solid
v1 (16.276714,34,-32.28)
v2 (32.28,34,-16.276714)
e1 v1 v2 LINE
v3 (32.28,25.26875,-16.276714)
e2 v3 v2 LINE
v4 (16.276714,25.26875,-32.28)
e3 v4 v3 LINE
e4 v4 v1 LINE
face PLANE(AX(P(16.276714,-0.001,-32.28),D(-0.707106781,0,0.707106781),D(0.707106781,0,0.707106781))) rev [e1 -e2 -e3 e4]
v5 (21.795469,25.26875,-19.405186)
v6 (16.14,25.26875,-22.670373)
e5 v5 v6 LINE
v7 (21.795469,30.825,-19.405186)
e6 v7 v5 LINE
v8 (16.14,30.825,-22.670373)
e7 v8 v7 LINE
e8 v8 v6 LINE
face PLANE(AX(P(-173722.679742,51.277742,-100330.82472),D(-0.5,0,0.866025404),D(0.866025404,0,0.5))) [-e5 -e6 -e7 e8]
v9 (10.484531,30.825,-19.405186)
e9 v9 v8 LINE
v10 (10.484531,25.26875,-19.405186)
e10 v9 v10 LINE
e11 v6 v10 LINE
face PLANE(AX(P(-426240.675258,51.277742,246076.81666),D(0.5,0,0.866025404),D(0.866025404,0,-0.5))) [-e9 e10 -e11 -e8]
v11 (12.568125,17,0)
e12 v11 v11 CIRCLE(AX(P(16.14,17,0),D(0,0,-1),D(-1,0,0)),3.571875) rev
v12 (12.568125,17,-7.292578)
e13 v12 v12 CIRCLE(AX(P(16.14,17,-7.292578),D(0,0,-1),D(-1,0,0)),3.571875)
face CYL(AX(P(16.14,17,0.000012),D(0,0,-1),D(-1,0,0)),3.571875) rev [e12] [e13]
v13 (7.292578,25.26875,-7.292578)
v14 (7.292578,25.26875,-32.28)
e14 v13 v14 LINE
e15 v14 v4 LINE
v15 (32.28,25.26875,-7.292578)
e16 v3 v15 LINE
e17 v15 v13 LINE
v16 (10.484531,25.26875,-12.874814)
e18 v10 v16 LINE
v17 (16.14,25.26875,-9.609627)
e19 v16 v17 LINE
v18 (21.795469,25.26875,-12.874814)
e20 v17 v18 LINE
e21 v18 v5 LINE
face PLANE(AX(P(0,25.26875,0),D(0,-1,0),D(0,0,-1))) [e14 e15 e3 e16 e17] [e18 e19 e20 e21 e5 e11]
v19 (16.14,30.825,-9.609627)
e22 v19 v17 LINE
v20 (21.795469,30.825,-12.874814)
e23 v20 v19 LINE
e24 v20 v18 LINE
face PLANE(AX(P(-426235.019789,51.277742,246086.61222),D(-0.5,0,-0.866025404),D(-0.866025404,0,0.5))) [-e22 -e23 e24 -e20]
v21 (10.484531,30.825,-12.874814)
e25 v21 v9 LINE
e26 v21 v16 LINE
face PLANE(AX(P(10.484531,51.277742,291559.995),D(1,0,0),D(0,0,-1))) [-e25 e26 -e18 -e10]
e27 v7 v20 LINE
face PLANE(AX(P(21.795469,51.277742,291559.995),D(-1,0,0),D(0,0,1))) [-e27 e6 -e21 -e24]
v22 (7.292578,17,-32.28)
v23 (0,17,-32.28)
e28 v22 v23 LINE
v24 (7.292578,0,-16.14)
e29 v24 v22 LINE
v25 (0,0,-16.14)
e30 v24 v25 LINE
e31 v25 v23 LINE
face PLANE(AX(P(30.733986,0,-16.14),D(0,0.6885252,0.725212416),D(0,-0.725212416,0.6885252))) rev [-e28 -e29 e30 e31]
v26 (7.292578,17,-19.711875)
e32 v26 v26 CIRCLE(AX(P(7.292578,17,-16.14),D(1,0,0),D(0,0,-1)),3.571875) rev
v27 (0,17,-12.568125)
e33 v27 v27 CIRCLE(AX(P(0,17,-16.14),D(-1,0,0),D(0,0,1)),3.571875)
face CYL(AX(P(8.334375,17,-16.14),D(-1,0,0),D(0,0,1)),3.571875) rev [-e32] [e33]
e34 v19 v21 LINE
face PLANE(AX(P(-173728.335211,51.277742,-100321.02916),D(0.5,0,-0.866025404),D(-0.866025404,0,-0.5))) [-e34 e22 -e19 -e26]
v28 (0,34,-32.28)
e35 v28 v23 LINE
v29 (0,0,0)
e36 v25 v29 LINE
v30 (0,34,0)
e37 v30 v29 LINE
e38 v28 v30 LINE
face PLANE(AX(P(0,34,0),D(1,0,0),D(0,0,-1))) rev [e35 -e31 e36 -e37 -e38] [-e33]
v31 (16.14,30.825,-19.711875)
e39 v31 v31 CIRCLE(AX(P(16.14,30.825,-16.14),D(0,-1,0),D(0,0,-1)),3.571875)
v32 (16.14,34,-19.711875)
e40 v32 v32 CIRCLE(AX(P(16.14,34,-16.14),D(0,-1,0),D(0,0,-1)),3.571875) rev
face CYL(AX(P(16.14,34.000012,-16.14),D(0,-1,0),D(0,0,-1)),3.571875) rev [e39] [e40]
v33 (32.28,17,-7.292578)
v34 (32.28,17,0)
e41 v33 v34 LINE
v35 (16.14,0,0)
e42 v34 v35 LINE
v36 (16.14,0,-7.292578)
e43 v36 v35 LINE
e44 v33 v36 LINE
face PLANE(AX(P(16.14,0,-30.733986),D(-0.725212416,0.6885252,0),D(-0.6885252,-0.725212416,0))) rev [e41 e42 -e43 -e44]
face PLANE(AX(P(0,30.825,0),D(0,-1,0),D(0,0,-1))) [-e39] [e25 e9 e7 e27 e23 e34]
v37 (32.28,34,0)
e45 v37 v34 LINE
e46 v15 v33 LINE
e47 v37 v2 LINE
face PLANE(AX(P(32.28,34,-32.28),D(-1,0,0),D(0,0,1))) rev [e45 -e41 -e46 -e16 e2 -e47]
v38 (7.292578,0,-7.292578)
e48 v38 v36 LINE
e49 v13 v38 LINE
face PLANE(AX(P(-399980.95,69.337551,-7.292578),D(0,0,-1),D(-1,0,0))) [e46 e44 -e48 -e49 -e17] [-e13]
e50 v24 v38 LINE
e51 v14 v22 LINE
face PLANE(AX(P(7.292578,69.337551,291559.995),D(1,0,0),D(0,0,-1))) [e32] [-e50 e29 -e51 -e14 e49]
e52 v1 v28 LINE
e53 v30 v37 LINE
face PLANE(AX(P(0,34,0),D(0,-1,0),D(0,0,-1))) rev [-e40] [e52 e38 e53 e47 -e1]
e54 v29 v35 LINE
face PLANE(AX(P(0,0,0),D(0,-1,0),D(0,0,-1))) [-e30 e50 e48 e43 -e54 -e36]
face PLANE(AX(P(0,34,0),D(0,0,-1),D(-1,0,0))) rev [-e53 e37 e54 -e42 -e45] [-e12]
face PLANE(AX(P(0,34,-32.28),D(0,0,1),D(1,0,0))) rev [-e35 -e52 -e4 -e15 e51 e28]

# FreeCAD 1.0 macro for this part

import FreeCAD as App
import Part
import Sketcher
Q = App.Units.Quantity


def add_polygon(sketch, points):
    """Adds a closed chain of lines whose ends are joined by coincident constraints."""
    first, n = sketch.GeometryCount, len(points)
    for a, b in zip(points, points[1:] + points[:1]):
        sketch.addGeometry(Part.LineSegment(App.Vector(*a, 0), App.Vector(*b, 0)), False)
    for i in range(n):
        sketch.addConstraint(Sketcher.Constraint("Coincident", first + i, 2, first + (i + 1) % n, 1))

doc = App.newDocument("Part")
params = doc.addObject("Spreadsheet::Sheet", "Params")
for row, (alias, value) in enumerate([
    ("sketch1_width", "32.28 mm"),
    ("pad1_length", "34 mm"),
    ("pocket1_length", "1 mm"),
    ("pocket1_length2", "8.334375 mm"),
    ("pocket2_length", "8.334375 mm"),
    ("pocket3_length", "1 mm"),
    ("pocket3_length2", "10 mm"),
    ("pocket4_length", "8.73125 mm"),
    ("pocket4_length2", "34 mm"),
    ("pocket5_length", "13.825 mm"),
    ("sketch8_width", "17 mm"),
    ("sketch8_height", "16.14 mm"),
    ("pocket7_length", "7.292578 mm"),
    ("sketch9_height", "17 mm"),
    ("sketch9_width", "16.14 mm"),
    ("pocket8_length", "7.292578 mm"),
], start=1):
    params.set(f"A{row}", alias)
    params.set(f"B{row}", "=" + value)
    params.setAlias(f"B{row}", alias)

body = doc.addObject("PartDesign::Body", "Body")

# Sketch on XZ plane
sketch1 = body.newObject("Sketcher::SketchObject", "Sketch")
sketch1.AttachmentSupport = (doc.getObject("XZ_Plane"), [""])
sketch1.MapMode = "FlatFace"
add_polygon(sketch1, [(0, -32), (0, 0), (32, 0), (32, -32)])  # lines 0-3
sketch1.addConstraint(Sketcher.Constraint("Vertical", 0))
sketch1.addConstraint(Sketcher.Constraint("Horizontal", 1))
sketch1.addConstraint(Sketcher.Constraint("Vertical", 2))
sketch1.addConstraint(Sketcher.Constraint("Horizontal", 3))
sketch1.addConstraint(Sketcher.Constraint("Coincident", 0, 2, -1, 1))
sketch1.addConstraint(Sketcher.Constraint("Equal", 3, 0))
sketch1.addConstraint(Sketcher.Constraint("DistanceX", 1, 1, 1, 2, 32.28))
sketch1.setExpression("Constraints[10]", "Params.sketch1_width")
pad1 = body.newObject("PartDesign::Pad", "Pad")
pad1.Profile = sketch1
pad1.setExpression("Length", "Params.pad1_length")
pad1.Reversed = True

# Sketch on XY plane
sketch2 = body.newObject("Sketcher::SketchObject", "Sketch001")
sketch2.AttachmentSupport = (doc.getObject("XY_Plane"), [""])
sketch2.MapMode = "FlatFace"
sketch2.addGeometry(Part.Circle(App.Vector(16.1, 17, 0), App.Vector(0, 0, 1), 3.6), False)
sketch2.addConstraint(Sketcher.Constraint("DistanceY", -1, 1, 0, 3, 17.0))
sketch2.addConstraint(Sketcher.Constraint("Diameter", 0, 7.14375))
sketch2.addConstraint(Sketcher.Constraint("DistanceX", -1, 1, 0, 3, 16.14))
pocket1 = body.newObject("PartDesign::Pocket", "Pocket")
pocket1.Profile = sketch2
pocket1.Type = "TwoLengths"
pocket1.setExpression("Length", "Params.pocket1_length")
pocket1.setExpression("Length2", "Params.pocket1_length2")
pocket1.Reversed = True

# Sketch on YZ plane
sketch3 = body.newObject("Sketcher::SketchObject", "Sketch002")
sketch3.AttachmentSupport = (doc.getObject("YZ_Plane"), [""])
sketch3.MapMode = "FlatFace"
sketch3.addGeometry(Part.Circle(App.Vector(17, -16.1, 0), App.Vector(0, 0, 1), 3.6), False)
sketch3.addConstraint(Sketcher.Constraint("DistanceX", -1, 1, 0, 3, 17.0))
sketch3.addConstraint(Sketcher.Constraint("Diameter", 0, 7.14375))
sketch3.addConstraint(Sketcher.Constraint("DistanceY", 0, 3, -1, 1, 16.14))
pocket2 = body.newObject("PartDesign::Pocket", "Pocket001")
pocket2.Profile = sketch3
pocket2.setExpression("Length", "Params.pocket2_length")
pocket2.Reversed = True

# Sketch on XZ plane
sketch4 = body.newObject("Sketcher::SketchObject", "Sketch003")
sketch4.AttachmentSupport = (doc.getObject("XZ_Plane"), [""])
sketch4.MapMode = "FlatFace"
sketch4.AttachmentOffset = App.Placement(App.Vector(0, 0, -34), App.Rotation())
sketch4.addGeometry(Part.Circle(App.Vector(16.1, -16.1, 0), App.Vector(0, 0, 1), 3.6), False)
sketch4.addConstraint(Sketcher.Constraint("Diameter", 0, 7.14375))
sketch4.addConstraint(Sketcher.Constraint("DistanceX", -1, 1, 0, 3, 16.14))
sketch4.addConstraint(Sketcher.Constraint("DistanceY", 0, 3, -1, 1, 16.14))
pocket3 = body.newObject("PartDesign::Pocket", "Pocket002")
pocket3.Profile = sketch4
pocket3.Type = "TwoLengths"
pocket3.setExpression("Length", "Params.pocket3_length")
pocket3.setExpression("Length2", "Params.pocket3_length2")

# Sketch on XZ plane
sketch5 = body.newObject("Sketcher::SketchObject", "Sketch004")
sketch5.AttachmentSupport = (doc.getObject("XZ_Plane"), [""])
sketch5.MapMode = "FlatFace"
sketch5.AttachmentOffset = App.Placement(App.Vector(0, 0, -16.5375), App.Rotation())
add_polygon(sketch5, [(7, -32), (7, -7), (32, -7), (32, -32)])  # lines 0-3
sketch5.addConstraint(Sketcher.Constraint("Vertical", 0))
sketch5.addConstraint(Sketcher.Constraint("Horizontal", 1))
sketch5.addConstraint(Sketcher.Constraint("Vertical", 2))
sketch5.addConstraint(Sketcher.Constraint("Horizontal", 3))
sketch5.addConstraint(Sketcher.Constraint("Equal", 3, 0))
sketch5.addConstraint(Sketcher.Constraint("DistanceX", -1, 1, 1, 2, 32.28))
sketch5.addConstraint(Sketcher.Constraint("DistanceY", 2, 2, -1, 1, 32.28))
sketch5.addConstraint(Sketcher.Constraint("DistanceX", 1, 1, 1, 2, 24.987422))
pocket4 = body.newObject("PartDesign::Pocket", "Pocket003")
pocket4.Profile = sketch5
pocket4.Type = "TwoLengths"
pocket4.setExpression("Length", "Params.pocket4_length")
pocket4.setExpression("Length2", "Params.pocket4_length2")

# Sketch on XZ plane
sketch6 = body.newObject("Sketcher::SketchObject", "Sketch005")
sketch6.AttachmentSupport = (doc.getObject("XZ_Plane"), [""])
sketch6.MapMode = "FlatFace"
sketch6.AttachmentOffset = App.Placement(App.Vector(0, 0, -17), App.Rotation())
add_polygon(sketch6, [(22, -19), (16, -23), (10, -19), (10, -13), (16, -10), (22, -13)])  # lines 0-5
sketch6.addConstraint(Sketcher.Constraint("Vertical", 2))
sketch6.addConstraint(Sketcher.Constraint("Vertical", 5))
sketch6.addConstraint(Sketcher.Constraint("Parallel", 0, 3))
sketch6.addConstraint(Sketcher.Constraint("Parallel", 1, 4))
sketch6.addConstraint(Sketcher.Constraint("Horizontal", 2, 2, 4, 2))
sketch6.addConstraint(Sketcher.Constraint("Horizontal", 1, 2, 5, 2))
sketch6.addConstraint(Sketcher.Constraint("Vertical", 0, 2, 3, 2))
sketch6.addConstraint(Sketcher.Constraint("Angle", 0, Q("-150 deg")))
sketch6.addConstraint(Sketcher.Constraint("DistanceX", -1, 1, 0, 2, 16.14))
sketch6.addConstraint(Sketcher.Constraint("DistanceY", 2, 1, 2, 2, 6.530373))
sketch6.addConstraint(Sketcher.Constraint("DistanceX", -1, 1, 1, 2, 10.484531))
sketch6.addConstraint(Sketcher.Constraint("DistanceY", 0, 2, -1, 1, 22.670373))
pocket5 = body.newObject("PartDesign::Pocket", "Pocket004")
pocket5.Profile = sketch6
pocket5.setExpression("Length", "Params.pocket5_length")

# Sketch on XZ plane
sketch7 = body.newObject("Sketcher::SketchObject", "Sketch006")
sketch7.AttachmentSupport = (doc.getObject("XZ_Plane"), [""])
sketch7.MapMode = "FlatFace"
sketch7.AttachmentOffset = App.Placement(App.Vector(0, 0, -34), App.Rotation())
add_polygon(sketch7, [(32, -32), (16, -32), (32, -16)])  # lines 0-2
sketch7.addConstraint(Sketcher.Constraint("Horizontal", 0))
sketch7.addConstraint(Sketcher.Constraint("Vertical", 2))
sketch7.addConstraint(Sketcher.Constraint("Equal", 0, 2))
sketch7.addConstraint(Sketcher.Constraint("DistanceY", 0, 2, -1, 1, 32.28))
sketch7.addConstraint(Sketcher.Constraint("DistanceX", -1, 1, 1, 2, 32.28))
sketch7.addConstraint(Sketcher.Constraint("DistanceX", 0, 2, 0, 1, 16.003286))
pocket6 = body.newObject("PartDesign::Pocket", "Pocket005")
pocket6.Profile = sketch7
pocket6.Type = "UpToFirst"
pocket6.Reversed = True

# Sketch on YZ plane
sketch8 = body.newObject("Sketcher::SketchObject", "Sketch007")
sketch8.AttachmentSupport = (doc.getObject("YZ_Plane"), [""])
sketch8.MapMode = "FlatFace"
add_polygon(sketch8, [(0, -32), (0, -16), (17, -32)])  # lines 0-2
sketch8.addConstraint(Sketcher.Constraint("Vertical", 0))
sketch8.addConstraint(Sketcher.Constraint("Horizontal", 2))
sketch8.addConstraint(Sketcher.Constraint("PointOnObject", 0, 2, -2))
sketch8.addConstraint(Sketcher.Constraint("DistanceX", 2, 2, 2, 1, 17.0))
sketch8.addConstraint(Sketcher.Constraint("DistanceY", 0, 1, 0, 2, 16.14))
sketch8.addConstraint(Sketcher.Constraint("DistanceY", 0, 2, -1, 1, 16.14))
sketch8.setExpression("Constraints[6]", "Params.sketch8_width")
sketch8.setExpression("Constraints[7]", "Params.sketch8_height")
pocket7 = body.newObject("PartDesign::Pocket", "Pocket006")
pocket7.Profile = sketch8
pocket7.setExpression("Length", "Params.pocket7_length")
pocket7.Reversed = True

# Sketch on XY plane
sketch9 = body.newObject("Sketcher::SketchObject", "Sketch008")
sketch9.AttachmentSupport = (doc.getObject("XY_Plane"), [""])
sketch9.MapMode = "FlatFace"
add_polygon(sketch9, [(16, 0), (32, 0), (32, 17)])  # lines 0-2
sketch9.addConstraint(Sketcher.Constraint("Horizontal", 0))
sketch9.addConstraint(Sketcher.Constraint("Vertical", 1))
sketch9.addConstraint(Sketcher.Constraint("PointOnObject", 0, 2, -1))
sketch9.addConstraint(Sketcher.Constraint("DistanceY", 1, 1, 1, 2, 17.0))
sketch9.addConstraint(Sketcher.Constraint("DistanceX", 0, 1, 0, 2, 16.14))
sketch9.addConstraint(Sketcher.Constraint("DistanceX", -1, 1, 0, 2, 32.28))
sketch9.setExpression("Constraints[6]", "Params.sketch9_height")
sketch9.setExpression("Constraints[7]", "Params.sketch9_width")
pocket8 = body.newObject("PartDesign::Pocket", "Pocket007")
pocket8.Profile = sketch9
pocket8.setExpression("Length", "Params.pocket8_length")

doc.recompute()
